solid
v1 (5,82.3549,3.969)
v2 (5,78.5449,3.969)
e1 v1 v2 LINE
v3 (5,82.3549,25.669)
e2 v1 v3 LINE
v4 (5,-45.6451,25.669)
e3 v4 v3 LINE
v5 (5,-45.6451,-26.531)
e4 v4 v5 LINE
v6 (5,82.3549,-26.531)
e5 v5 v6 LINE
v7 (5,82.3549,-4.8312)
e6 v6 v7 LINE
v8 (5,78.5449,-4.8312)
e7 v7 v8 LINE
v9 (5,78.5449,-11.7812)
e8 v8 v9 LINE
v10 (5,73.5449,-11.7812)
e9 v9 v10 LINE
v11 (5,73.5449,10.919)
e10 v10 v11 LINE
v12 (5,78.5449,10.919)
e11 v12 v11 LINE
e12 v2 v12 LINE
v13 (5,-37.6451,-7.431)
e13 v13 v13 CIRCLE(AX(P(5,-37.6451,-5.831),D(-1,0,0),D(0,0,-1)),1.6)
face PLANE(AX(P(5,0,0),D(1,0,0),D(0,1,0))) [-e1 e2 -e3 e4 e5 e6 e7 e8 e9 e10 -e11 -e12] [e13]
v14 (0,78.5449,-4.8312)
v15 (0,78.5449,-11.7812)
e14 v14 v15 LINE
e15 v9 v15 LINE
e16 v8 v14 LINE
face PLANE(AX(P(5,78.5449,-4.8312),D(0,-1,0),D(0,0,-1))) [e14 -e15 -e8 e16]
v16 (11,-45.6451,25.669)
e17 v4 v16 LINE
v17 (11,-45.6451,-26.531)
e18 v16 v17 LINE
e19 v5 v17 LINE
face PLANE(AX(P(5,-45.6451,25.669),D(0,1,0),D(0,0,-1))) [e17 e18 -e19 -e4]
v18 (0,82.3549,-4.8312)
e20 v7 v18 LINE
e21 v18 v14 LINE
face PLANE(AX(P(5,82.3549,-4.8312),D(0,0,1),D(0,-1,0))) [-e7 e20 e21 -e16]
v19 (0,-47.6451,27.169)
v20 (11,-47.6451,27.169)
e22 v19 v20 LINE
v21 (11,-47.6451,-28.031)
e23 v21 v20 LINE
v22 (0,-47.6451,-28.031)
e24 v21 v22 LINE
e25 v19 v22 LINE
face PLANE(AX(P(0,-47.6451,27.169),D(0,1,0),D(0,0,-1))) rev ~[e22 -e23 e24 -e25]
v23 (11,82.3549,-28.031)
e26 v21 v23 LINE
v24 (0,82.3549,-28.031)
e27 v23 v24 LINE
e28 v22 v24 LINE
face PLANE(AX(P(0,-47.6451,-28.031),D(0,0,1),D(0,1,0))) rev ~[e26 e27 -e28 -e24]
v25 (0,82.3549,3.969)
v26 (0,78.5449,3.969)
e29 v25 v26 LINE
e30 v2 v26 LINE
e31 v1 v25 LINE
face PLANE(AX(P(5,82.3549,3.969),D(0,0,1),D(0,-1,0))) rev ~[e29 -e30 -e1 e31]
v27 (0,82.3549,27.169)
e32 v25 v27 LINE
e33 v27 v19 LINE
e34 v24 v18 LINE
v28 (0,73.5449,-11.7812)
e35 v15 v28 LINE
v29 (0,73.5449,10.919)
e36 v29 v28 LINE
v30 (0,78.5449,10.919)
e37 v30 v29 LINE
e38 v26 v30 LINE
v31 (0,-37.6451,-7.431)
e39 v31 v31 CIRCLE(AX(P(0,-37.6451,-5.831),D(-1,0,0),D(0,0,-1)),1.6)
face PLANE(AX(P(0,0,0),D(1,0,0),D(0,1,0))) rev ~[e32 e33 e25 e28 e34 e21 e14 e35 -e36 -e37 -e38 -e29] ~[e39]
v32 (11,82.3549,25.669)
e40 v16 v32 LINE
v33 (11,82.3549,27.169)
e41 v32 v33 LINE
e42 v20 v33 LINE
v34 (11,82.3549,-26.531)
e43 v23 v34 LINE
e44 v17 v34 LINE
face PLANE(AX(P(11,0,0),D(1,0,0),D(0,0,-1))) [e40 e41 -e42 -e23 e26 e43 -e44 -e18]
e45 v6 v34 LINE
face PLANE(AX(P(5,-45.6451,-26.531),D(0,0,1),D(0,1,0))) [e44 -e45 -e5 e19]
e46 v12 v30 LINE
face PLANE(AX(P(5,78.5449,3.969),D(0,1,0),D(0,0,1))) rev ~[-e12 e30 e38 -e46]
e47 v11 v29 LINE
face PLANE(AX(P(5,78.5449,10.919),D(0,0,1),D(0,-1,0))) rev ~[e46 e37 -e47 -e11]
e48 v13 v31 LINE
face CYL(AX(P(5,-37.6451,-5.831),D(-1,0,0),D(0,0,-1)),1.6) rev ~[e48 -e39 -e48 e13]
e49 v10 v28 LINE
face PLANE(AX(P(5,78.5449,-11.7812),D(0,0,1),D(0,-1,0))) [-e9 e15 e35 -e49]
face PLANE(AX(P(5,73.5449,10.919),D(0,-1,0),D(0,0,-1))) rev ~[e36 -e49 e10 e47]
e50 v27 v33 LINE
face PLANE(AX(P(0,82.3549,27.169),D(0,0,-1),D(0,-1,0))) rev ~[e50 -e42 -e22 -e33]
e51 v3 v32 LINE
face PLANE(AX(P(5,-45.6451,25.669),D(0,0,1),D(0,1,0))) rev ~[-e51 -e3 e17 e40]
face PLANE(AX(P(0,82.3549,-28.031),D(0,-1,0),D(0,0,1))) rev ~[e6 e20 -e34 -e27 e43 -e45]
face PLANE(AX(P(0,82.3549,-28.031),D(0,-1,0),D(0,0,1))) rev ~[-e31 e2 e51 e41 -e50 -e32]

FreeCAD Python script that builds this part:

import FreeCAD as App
import Part
import Sketcher
Q = App.Units.Quantity

doc = App.newDocument("Part")
body = doc.addObject("PartDesign::Body", "Body")

sketch1 = body.newObject("Sketcher::SketchObject", "Sketch")
sketch1.AttachmentSupport = (doc.getObject("YZ_Plane"), [""])
sketch1.MapMode = "FlatFace"
sketch1.addGeometry(Part.LineSegment(App.Vector(82.3549, -28.031, 0), App.Vector(82.3549, 27.169, 0)), False)
sketch1.addGeometry(Part.LineSegment(App.Vector(82.3549, 27.169, 0), App.Vector(-47.6451, 27.169, 0)), False)
sketch1.addGeometry(Part.LineSegment(App.Vector(-47.6451, 27.169, 0), App.Vector(-47.6451, -28.031, 0)), False)
sketch1.addGeometry(Part.LineSegment(App.Vector(-47.6451, -28.031, 0), App.Vector(82.3549, -28.031, 0)), False)
sketch1.addConstraint(Sketcher.Constraint("Coincident", 0, 2, 1, 1))
sketch1.addConstraint(Sketcher.Constraint("Coincident", 1, 2, 2, 1))
sketch1.addConstraint(Sketcher.Constraint("Coincident", 2, 2, 3, 1))
sketch1.addConstraint(Sketcher.Constraint("Coincident", 3, 2, 0, 1))
sketch1.addConstraint(Sketcher.Constraint("Vertical", 0))
sketch1.addConstraint(Sketcher.Constraint("Horizontal", 1))
sketch1.addConstraint(Sketcher.Constraint("Vertical", 2))
sketch1.addConstraint(Sketcher.Constraint("Horizontal", 3))
sketch1.addConstraint(Sketcher.Constraint("DistanceX", 1, 2, 1, 1, Q("130 mm")))
sketch1.addConstraint(Sketcher.Constraint("DistanceY", 0, 1, 0, 2, Q("55.2 mm")))
sketch1.addConstraint(Sketcher.Constraint("DistanceX", -1, 1, 0, 2, Q("82.355 mm")))
sketch1.addConstraint(Sketcher.Constraint("DistanceY", -1, 1, 0, 2, Q("27.169 mm")))
pad1 = body.newObject("PartDesign::Pad", "Pad")
pad1.Profile = sketch1
pad1.Length = 5

sketch2 = body.newObject("Sketcher::SketchObject", "Sketch001")
sketch2.AttachmentSupport = (doc.getObject("YZ_Plane"), [""])
sketch2.MapMode = "FlatFace"
sketch2.AttachmentOffset = App.Placement(App.Vector(0, 0, 5), App.Rotation())
sketch2.addGeometry(Part.Circle(App.Vector(-37.6451, -5.831, 0), App.Vector(0, 0, 1), 1.6), False)
sketch2.addConstraint(Sketcher.Constraint("Diameter", 0, Q("3.2 mm")))
sketch2.addConstraint(Sketcher.Constraint("DistanceX", 0, 3, -1, 1, Q("37.645 mm")))
sketch2.addConstraint(Sketcher.Constraint("DistanceY", 0, 3, -1, 1, Q("5.831 mm")))
doc.recompute()
hole = body.newObject("PartDesign::Hole", "Hole")
hole.Profile = sketch2
hole.ThreadType = "None"
hole.Diameter = 3.2
hole.DepthType = "ThroughAll"

sketch3 = body.newObject("Sketcher::SketchObject", "Sketch002")
sketch3.AttachmentSupport = (doc.getObject("YZ_Plane"), [""])
sketch3.MapMode = "FlatFace"
sketch3.AttachmentOffset = App.Placement(App.Vector(0, 0, 5), App.Rotation())
sketch3.addGeometry(Part.LineSegment(App.Vector(-47.6451, 27.169, 0), App.Vector(-47.6451, -28.031, 0)), False)
sketch3.addGeometry(Part.LineSegment(App.Vector(-47.6451, -28.031, 0), App.Vector(82.3549, -28.031, 0)), False)
sketch3.addGeometry(Part.LineSegment(App.Vector(82.3549, -28.031, 0), App.Vector(82.3549, -26.531, 0)), False)
sketch3.addGeometry(Part.LineSegment(App.Vector(82.3549, -26.531, 0), App.Vector(-45.6451, -26.531, 0)), False)
sketch3.addGeometry(Part.LineSegment(App.Vector(-45.6451, -26.531, 0), App.Vector(-45.6451, 25.669, 0)), False)
sketch3.addGeometry(Part.LineSegment(App.Vector(-45.6451, 25.669, 0), App.Vector(82.3549, 25.669, 0)), False)
sketch3.addGeometry(Part.LineSegment(App.Vector(82.3549, 25.669, 0), App.Vector(82.3549, 27.169, 0)), False)
sketch3.addGeometry(Part.LineSegment(App.Vector(82.3549, 27.169, 0), App.Vector(-47.6451, 27.169, 0)), False)
sketch3.addConstraint(Sketcher.Constraint("Coincident", 0, 2, 1, 1))
sketch3.addConstraint(Sketcher.Constraint("Coincident", 1, 2, 2, 1))
sketch3.addConstraint(Sketcher.Constraint("Coincident", 2, 2, 3, 1))
sketch3.addConstraint(Sketcher.Constraint("Coincident", 3, 2, 4, 1))
sketch3.addConstraint(Sketcher.Constraint("Coincident", 4, 2, 5, 1))
sketch3.addConstraint(Sketcher.Constraint("Coincident", 5, 2, 6, 1))
sketch3.addConstraint(Sketcher.Constraint("Coincident", 6, 2, 7, 1))
sketch3.addConstraint(Sketcher.Constraint("Coincident", 7, 2, 0, 1))
sketch3.addConstraint(Sketcher.Constraint("Vertical", 0))
sketch3.addConstraint(Sketcher.Constraint("Horizontal", 1))
sketch3.addConstraint(Sketcher.Constraint("Vertical", 2))
sketch3.addConstraint(Sketcher.Constraint("Horizontal", 3))
sketch3.addConstraint(Sketcher.Constraint("Vertical", 4))
sketch3.addConstraint(Sketcher.Constraint("Horizontal", 5))
sketch3.addConstraint(Sketcher.Constraint("Vertical", 6))
sketch3.addConstraint(Sketcher.Constraint("Horizontal", 7))
sketch3.addConstraint(Sketcher.Constraint("Vertical", 2, 2, 5, 2))
sketch3.addConstraint(Sketcher.Constraint("Equal", 2, 6))
sketch3.addConstraint(Sketcher.Constraint("DistanceY", 2, 1, 2, 2, Q("1.5 mm")))
sketch3.addConstraint(Sketcher.Constraint("DistanceX", 0, 2, 3, 2, Q("2 mm")))
sketch3.addConstraint(Sketcher.Constraint("DistanceX", 1, 1, 1, 2, Q("130 mm")))
sketch3.addConstraint(Sketcher.Constraint("DistanceY", 0, 2, 0, 1, Q("55.2 mm")))
sketch3.addConstraint(Sketcher.Constraint("DistanceX", 0, 2, -1, 1, Q("47.645 mm")))
sketch3.addConstraint(Sketcher.Constraint("DistanceY", 0, 2, -1, 1, Q("28.031 mm")))
pad2 = body.newObject("PartDesign::Pad", "Pad001")
pad2.Profile = sketch3
pad2.Length = 6

sketch4 = body.newObject("Sketcher::SketchObject", "Sketch003")
sketch4.AttachmentSupport = (doc.getObject("YZ_Plane"), [""])
sketch4.MapMode = "FlatFace"
sketch4.AttachmentOffset = App.Placement(App.Vector(0, 0, 5), App.Rotation())
sketch4.addGeometry(Part.LineSegment(App.Vector(82.3549, -4.8312, 0), App.Vector(82.3549, 3.969, 0)), False)
sketch4.addGeometry(Part.LineSegment(App.Vector(82.3549, 3.969, 0), App.Vector(78.5449, 3.969, 0)), False)
sketch4.addGeometry(Part.LineSegment(App.Vector(78.5449, 3.969, 0), App.Vector(78.5449, 10.919, 0)), False)
sketch4.addGeometry(Part.LineSegment(App.Vector(78.5449, 10.919, 0), App.Vector(73.5449, 10.919, 0)), False)
sketch4.addGeometry(Part.LineSegment(App.Vector(73.5449, 10.919, 0), App.Vector(73.5449, -11.7812, 0)), False)
sketch4.addGeometry(Part.LineSegment(App.Vector(73.5449, -11.7812, 0), App.Vector(78.5449, -11.7812, 0)), False)
sketch4.addGeometry(Part.LineSegment(App.Vector(78.5449, -11.7812, 0), App.Vector(78.5449, -4.8312, 0)), False)
sketch4.addGeometry(Part.LineSegment(App.Vector(78.5449, -4.8312, 0), App.Vector(82.3549, -4.8312, 0)), False)
sketch4.addConstraint(Sketcher.Constraint("Coincident", 0, 2, 1, 1))
sketch4.addConstraint(Sketcher.Constraint("Coincident", 1, 2, 2, 1))
sketch4.addConstraint(Sketcher.Constraint("Coincident", 2, 2, 3, 1))
sketch4.addConstraint(Sketcher.Constraint("Coincident", 3, 2, 4, 1))
sketch4.addConstraint(Sketcher.Constraint("Coincident", 4, 2, 5, 1))
sketch4.addConstraint(Sketcher.Constraint("Coincident", 5, 2, 6, 1))
sketch4.addConstraint(Sketcher.Constraint("Coincident", 6, 2, 7, 1))
sketch4.addConstraint(Sketcher.Constraint("Coincident", 7, 2, 0, 1))
sketch4.addConstraint(Sketcher.Constraint("Vertical", 0))
sketch4.addConstraint(Sketcher.Constraint("Horizontal", 1))
sketch4.addConstraint(Sketcher.Constraint("Vertical", 2))
sketch4.addConstraint(Sketcher.Constraint("Horizontal", 3))
sketch4.addConstraint(Sketcher.Constraint("Vertical", 4))
sketch4.addConstraint(Sketcher.Constraint("Horizontal", 5))
sketch4.addConstraint(Sketcher.Constraint("Vertical", 6))
sketch4.addConstraint(Sketcher.Constraint("Horizontal", 7))
sketch4.addConstraint(Sketcher.Constraint("Vertical", 2, 2, 5, 2))
sketch4.addConstraint(Sketcher.Constraint("Equal", 2, 6))
sketch4.addConstraint(Sketcher.Constraint("DistanceX", 3, 2, 3, 1, Q("5 mm")))
sketch4.addConstraint(Sketcher.Constraint("DistanceX", 1, 2, 1, 1, Q("3.81 mm")))
sketch4.addConstraint(Sketcher.Constraint("DistanceY", 2, 1, 2, 2, Q("6.95 mm")))
sketch4.addConstraint(Sketcher.Constraint("DistanceY", 0, 1, 0, 2, Q("8.8002 mm")))
sketch4.addConstraint(Sketcher.Constraint("DistanceX", -1, 1, 0, 2, Q("82.355 mm")))
sketch4.addConstraint(Sketcher.Constraint("DistanceY", -1, 1, 0, 2, Q("3.969 mm")))
pocket1 = body.newObject("PartDesign::Pocket", "Pocket")
pocket1.Profile = sketch4
pocket1.Length = 7.9375

doc.recompute()
